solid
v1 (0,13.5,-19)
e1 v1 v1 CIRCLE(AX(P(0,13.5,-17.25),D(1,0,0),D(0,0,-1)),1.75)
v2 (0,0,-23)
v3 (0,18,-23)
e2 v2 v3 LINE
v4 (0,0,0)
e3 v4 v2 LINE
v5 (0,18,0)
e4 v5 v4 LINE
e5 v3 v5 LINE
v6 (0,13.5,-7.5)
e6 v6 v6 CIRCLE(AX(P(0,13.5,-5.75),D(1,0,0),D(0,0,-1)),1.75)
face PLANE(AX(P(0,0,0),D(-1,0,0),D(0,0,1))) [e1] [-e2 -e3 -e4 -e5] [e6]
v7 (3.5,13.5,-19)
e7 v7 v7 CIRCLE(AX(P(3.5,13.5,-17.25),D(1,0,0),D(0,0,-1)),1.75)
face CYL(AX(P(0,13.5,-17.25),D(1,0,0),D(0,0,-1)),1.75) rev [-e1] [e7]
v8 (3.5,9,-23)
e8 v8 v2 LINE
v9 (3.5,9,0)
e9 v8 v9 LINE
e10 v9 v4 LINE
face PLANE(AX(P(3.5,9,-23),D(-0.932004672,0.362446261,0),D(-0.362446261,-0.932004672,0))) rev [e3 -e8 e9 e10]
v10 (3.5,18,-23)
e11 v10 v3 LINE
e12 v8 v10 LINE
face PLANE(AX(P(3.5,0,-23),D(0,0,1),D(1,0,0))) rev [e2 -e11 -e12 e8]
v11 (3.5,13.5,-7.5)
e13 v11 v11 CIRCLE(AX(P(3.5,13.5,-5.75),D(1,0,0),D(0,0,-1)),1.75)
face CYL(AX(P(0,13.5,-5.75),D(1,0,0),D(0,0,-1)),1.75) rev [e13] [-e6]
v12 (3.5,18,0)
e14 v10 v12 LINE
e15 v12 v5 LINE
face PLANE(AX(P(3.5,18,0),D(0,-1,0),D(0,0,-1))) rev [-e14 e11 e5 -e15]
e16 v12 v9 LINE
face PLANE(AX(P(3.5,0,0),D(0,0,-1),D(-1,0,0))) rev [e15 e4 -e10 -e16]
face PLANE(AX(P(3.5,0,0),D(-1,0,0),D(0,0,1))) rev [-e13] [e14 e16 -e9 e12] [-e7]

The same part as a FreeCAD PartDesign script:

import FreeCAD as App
import Part
import Sketcher

V = App.Vector

doc = App.newDocument("Part")
body = doc.addObject("PartDesign::Body", "Body")

sketch1 = body.newObject("Sketcher::SketchObject", "Sketch")
sketch1.AttachmentSupport = (doc.getObject("YZ_Plane"), [""])
sketch1.MapMode = "FlatFace"
sketch1.addGeometry(Part.LineSegment(V(18, 0, 0), V(0, 0, 0)), False)
sketch1.addGeometry(Part.LineSegment(V(0, 0, 0), V(0, -23, 0)), False)
sketch1.addGeometry(Part.LineSegment(V(0, -23, 0), V(18, -23, 0)), False)
sketch1.addGeometry(Part.LineSegment(V(18, -23, 0), V(18, 0, 0)), False)
sketch1.addConstraint(Sketcher.Constraint("Coincident", 0, 2, 1, 1))
sketch1.addConstraint(Sketcher.Constraint("Coincident", 1, 2, 2, 1))
sketch1.addConstraint(Sketcher.Constraint("Coincident", 2, 2, 3, 1))
sketch1.addConstraint(Sketcher.Constraint("Coincident", 3, 2, 0, 1))
sketch1.addConstraint(Sketcher.Constraint("Horizontal", 0))
sketch1.addConstraint(Sketcher.Constraint("Vertical", 1))
sketch1.addConstraint(Sketcher.Constraint("Horizontal", 2))
sketch1.addConstraint(Sketcher.Constraint("Vertical", 3))
sketch1.addConstraint(Sketcher.Constraint("Coincident", 0, 2, -1, 1))
sketch1.addConstraint(Sketcher.Constraint("DistanceX", 0, 2, 0, 1, 18.0))
sketch1.addConstraint(Sketcher.Constraint("DistanceY", 1, 2, 1, 1, 23.0))
pad1 = body.newObject("PartDesign::Pad", "Pad")
pad1.Profile = sketch1
pad1.Length = 3.5

sketch2 = body.newObject("Sketcher::SketchObject", "Sketch001")
sketch2.AttachmentSupport = (doc.getObject("XY_Plane"), [""])
sketch2.MapMode = "FlatFace"
sketch2.addGeometry(Part.LineSegment(V(3.5, 9, 0), V(0, 0, 0)), False)
sketch2.addGeometry(Part.LineSegment(V(0, 0, 0), V(3.5, 0, 0)), False)
sketch2.addGeometry(Part.LineSegment(V(3.5, 0, 0), V(3.5, 9, 0)), False)
sketch2.addConstraint(Sketcher.Constraint("Coincident", 0, 2, 1, 1))
sketch2.addConstraint(Sketcher.Constraint("Coincident", 1, 2, 2, 1))
sketch2.addConstraint(Sketcher.Constraint("Coincident", 2, 2, 0, 1))
sketch2.addConstraint(Sketcher.Constraint("Horizontal", 1))
sketch2.addConstraint(Sketcher.Constraint("Vertical", 2))
sketch2.addConstraint(Sketcher.Constraint("Coincident", 0, 2, -1, 1))
sketch2.addConstraint(Sketcher.Constraint("DistanceY", 2, 1, 2, 2, 9.0))
sketch2.addConstraint(Sketcher.Constraint("DistanceX", 1, 1, 1, 2, 3.5))
pocket1 = body.newObject("PartDesign::Pocket", "Pocket")
pocket1.Profile = sketch2
pocket1.Type = "ThroughAll"

sketch3 = body.newObject("Sketcher::SketchObject", "Sketch002")
sketch3.AttachmentSupport = (doc.getObject("YZ_Plane"), [""])
sketch3.MapMode = "FlatFace"
sketch3.AttachmentOffset = App.Placement(V(0, 0, 3.5), App.Rotation())
sketch3.addGeometry(Part.Circle(V(13.5, -5.8, 0), V(0, 0, 1), 1.8), False)
sketch3.addGeometry(Part.Circle(V(13.5, -17.2, 0), V(0, 0, 1), 1.8), False)
sketch3.addConstraint(Sketcher.Constraint("Equal", 0, 1))
sketch3.addConstraint(Sketcher.Constraint("Vertical", 0, 3, 1, 3))
sketch3.addConstraint(Sketcher.Constraint("Diameter", 0, 3.5))
sketch3.addConstraint(Sketcher.Constraint("DistanceX", -1, 1, 0, 3, 13.5))
sketch3.addConstraint(Sketcher.Constraint("DistanceY", 1, 3, 0, 3, 11.5))
sketch3.addConstraint(Sketcher.Constraint("DistanceY", 0, 3, -1, 1, 5.75))
pocket2 = body.newObject("PartDesign::Pocket", "Pocket001")
pocket2.Profile = sketch3
pocket2.Type = "ThroughAll"

doc.recompute()
